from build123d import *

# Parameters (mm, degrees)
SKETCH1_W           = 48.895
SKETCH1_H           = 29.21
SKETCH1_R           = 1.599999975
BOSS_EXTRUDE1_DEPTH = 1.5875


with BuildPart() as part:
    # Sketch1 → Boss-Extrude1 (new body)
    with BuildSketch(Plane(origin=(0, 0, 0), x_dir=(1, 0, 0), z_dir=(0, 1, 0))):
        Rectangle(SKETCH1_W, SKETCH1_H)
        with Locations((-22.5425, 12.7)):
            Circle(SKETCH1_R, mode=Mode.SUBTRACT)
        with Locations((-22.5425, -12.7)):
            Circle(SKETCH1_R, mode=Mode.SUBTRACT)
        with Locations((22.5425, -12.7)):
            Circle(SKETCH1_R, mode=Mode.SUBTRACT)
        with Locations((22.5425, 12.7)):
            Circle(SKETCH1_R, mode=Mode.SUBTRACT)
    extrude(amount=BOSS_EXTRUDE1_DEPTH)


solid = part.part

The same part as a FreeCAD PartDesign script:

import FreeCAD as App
import Part
import Sketcher
from FreeCAD import Vector
Q = App.Units.Quantity

doc = App.newDocument("Part")
params = doc.addObject("Spreadsheet::Sheet", "Params")
for row, (alias, value) in enumerate([
    ("sketch1_height", "1.15 in"),
    ("sketch1_width", "1.925 in"),
    ("pad1_length", "0.0625 in"),
], start=1):
    params.set(f"A{row}", alias)
    params.set(f"B{row}", "=" + value)
    params.setAlias(f"B{row}", alias)

body = doc.addObject("PartDesign::Body", "Body")

# Sketch on XZ plane
sketch1 = doc.addObject("Sketcher::SketchObject", "Sketch")
body.addObject(sketch1)
sketch1.AttachmentSupport = (doc.XZ_Plane, [""])
sketch1.MapMode = "FlatFace"
sketch1.addGeometry(Part.LineSegment(Vector(-24.4, -14.6, 0), Vector(-24.4, 14.6, 0)), False)
sketch1.addGeometry(Part.LineSegment(Vector(-24.4, 14.6, 0), Vector(24.4, 14.6, 0)), False)
sketch1.addGeometry(Part.LineSegment(Vector(24.4, 14.6, 0), Vector(24.4, -14.6, 0)), False)
sketch1.addGeometry(Part.LineSegment(Vector(24.4, -14.6, 0), Vector(-24.4, -14.6, 0)), False)
sketch1.addGeometry(Part.Circle(Vector(-22.5, 12.7, 0), Vector(0, 0, 1), 1.6), False)
sketch1.addGeometry(Part.Circle(Vector(22.5, 12.7, 0), Vector(0, 0, 1), 1.6), False)
sketch1.addGeometry(Part.Circle(Vector(-22.5, -12.7, 0), Vector(0, 0, 1), 1.6), False)
sketch1.addGeometry(Part.Circle(Vector(22.5, -12.7, 0), Vector(0, 0, 1), 1.6), False)
sketch1.addConstraint(Sketcher.Constraint("Coincident", 0, 2, 1, 1))
sketch1.addConstraint(Sketcher.Constraint("Coincident", 1, 2, 2, 1))
sketch1.addConstraint(Sketcher.Constraint("Coincident", 2, 2, 3, 1))
sketch1.addConstraint(Sketcher.Constraint("Coincident", 3, 2, 0, 1))
sketch1.addConstraint(Sketcher.Constraint("Vertical", 0))
sketch1.addConstraint(Sketcher.Constraint("Horizontal", 1))
sketch1.addConstraint(Sketcher.Constraint("Vertical", 2))
sketch1.addConstraint(Sketcher.Constraint("Horizontal", 3))
sketch1.addConstraint(Sketcher.Constraint("Equal", 4, 5))
sketch1.addConstraint(Sketcher.Constraint("Equal", 5, 6))
sketch1.addConstraint(Sketcher.Constraint("Equal", 6, 7))
sketch1.addConstraint(Sketcher.Constraint("Symmetric", 5, 3, 6, 3, -1, 1))
sketch1.addConstraint(Sketcher.Constraint("Symmetric", 4, 3, 7, 3, -1, 1))
sketch1.addConstraint(Sketcher.Constraint("Symmetric", 0, 2, 2, 2, -1, 1))
sketch1.addConstraint(Sketcher.Constraint("Symmetric", 4, 3, 5, 3, -2))
sketch1.addConstraint(Sketcher.Constraint("DistanceY", 6, 3, 4, 3, Q("1 in")))
sketch1.addConstraint(Sketcher.Constraint("DistanceY", 0, 1, 0, 2, Q("1.15 in")))
sketch1.addConstraint(Sketcher.Constraint("Diameter", 4, 3.2))
sketch1.addConstraint(Sketcher.Constraint("DistanceX", 1, 1, 1, 2, Q("1.925 in")))
sketch1.addConstraint(Sketcher.Constraint("DistanceX", 0, 2, 5, 3, Q("1.85 in")))
sketch1.setExpression("Constraints[16]", "Params.sketch1_height")
sketch1.setExpression("Constraints[18]", "Params.sketch1_width")
pad1 = doc.addObject("PartDesign::Pad", "Pad")
body.addObject(pad1)
pad1.Profile = sketch1
pad1.setExpression("Length", "Params.pad1_length")
pad1.Reversed = True

doc.recompute()
